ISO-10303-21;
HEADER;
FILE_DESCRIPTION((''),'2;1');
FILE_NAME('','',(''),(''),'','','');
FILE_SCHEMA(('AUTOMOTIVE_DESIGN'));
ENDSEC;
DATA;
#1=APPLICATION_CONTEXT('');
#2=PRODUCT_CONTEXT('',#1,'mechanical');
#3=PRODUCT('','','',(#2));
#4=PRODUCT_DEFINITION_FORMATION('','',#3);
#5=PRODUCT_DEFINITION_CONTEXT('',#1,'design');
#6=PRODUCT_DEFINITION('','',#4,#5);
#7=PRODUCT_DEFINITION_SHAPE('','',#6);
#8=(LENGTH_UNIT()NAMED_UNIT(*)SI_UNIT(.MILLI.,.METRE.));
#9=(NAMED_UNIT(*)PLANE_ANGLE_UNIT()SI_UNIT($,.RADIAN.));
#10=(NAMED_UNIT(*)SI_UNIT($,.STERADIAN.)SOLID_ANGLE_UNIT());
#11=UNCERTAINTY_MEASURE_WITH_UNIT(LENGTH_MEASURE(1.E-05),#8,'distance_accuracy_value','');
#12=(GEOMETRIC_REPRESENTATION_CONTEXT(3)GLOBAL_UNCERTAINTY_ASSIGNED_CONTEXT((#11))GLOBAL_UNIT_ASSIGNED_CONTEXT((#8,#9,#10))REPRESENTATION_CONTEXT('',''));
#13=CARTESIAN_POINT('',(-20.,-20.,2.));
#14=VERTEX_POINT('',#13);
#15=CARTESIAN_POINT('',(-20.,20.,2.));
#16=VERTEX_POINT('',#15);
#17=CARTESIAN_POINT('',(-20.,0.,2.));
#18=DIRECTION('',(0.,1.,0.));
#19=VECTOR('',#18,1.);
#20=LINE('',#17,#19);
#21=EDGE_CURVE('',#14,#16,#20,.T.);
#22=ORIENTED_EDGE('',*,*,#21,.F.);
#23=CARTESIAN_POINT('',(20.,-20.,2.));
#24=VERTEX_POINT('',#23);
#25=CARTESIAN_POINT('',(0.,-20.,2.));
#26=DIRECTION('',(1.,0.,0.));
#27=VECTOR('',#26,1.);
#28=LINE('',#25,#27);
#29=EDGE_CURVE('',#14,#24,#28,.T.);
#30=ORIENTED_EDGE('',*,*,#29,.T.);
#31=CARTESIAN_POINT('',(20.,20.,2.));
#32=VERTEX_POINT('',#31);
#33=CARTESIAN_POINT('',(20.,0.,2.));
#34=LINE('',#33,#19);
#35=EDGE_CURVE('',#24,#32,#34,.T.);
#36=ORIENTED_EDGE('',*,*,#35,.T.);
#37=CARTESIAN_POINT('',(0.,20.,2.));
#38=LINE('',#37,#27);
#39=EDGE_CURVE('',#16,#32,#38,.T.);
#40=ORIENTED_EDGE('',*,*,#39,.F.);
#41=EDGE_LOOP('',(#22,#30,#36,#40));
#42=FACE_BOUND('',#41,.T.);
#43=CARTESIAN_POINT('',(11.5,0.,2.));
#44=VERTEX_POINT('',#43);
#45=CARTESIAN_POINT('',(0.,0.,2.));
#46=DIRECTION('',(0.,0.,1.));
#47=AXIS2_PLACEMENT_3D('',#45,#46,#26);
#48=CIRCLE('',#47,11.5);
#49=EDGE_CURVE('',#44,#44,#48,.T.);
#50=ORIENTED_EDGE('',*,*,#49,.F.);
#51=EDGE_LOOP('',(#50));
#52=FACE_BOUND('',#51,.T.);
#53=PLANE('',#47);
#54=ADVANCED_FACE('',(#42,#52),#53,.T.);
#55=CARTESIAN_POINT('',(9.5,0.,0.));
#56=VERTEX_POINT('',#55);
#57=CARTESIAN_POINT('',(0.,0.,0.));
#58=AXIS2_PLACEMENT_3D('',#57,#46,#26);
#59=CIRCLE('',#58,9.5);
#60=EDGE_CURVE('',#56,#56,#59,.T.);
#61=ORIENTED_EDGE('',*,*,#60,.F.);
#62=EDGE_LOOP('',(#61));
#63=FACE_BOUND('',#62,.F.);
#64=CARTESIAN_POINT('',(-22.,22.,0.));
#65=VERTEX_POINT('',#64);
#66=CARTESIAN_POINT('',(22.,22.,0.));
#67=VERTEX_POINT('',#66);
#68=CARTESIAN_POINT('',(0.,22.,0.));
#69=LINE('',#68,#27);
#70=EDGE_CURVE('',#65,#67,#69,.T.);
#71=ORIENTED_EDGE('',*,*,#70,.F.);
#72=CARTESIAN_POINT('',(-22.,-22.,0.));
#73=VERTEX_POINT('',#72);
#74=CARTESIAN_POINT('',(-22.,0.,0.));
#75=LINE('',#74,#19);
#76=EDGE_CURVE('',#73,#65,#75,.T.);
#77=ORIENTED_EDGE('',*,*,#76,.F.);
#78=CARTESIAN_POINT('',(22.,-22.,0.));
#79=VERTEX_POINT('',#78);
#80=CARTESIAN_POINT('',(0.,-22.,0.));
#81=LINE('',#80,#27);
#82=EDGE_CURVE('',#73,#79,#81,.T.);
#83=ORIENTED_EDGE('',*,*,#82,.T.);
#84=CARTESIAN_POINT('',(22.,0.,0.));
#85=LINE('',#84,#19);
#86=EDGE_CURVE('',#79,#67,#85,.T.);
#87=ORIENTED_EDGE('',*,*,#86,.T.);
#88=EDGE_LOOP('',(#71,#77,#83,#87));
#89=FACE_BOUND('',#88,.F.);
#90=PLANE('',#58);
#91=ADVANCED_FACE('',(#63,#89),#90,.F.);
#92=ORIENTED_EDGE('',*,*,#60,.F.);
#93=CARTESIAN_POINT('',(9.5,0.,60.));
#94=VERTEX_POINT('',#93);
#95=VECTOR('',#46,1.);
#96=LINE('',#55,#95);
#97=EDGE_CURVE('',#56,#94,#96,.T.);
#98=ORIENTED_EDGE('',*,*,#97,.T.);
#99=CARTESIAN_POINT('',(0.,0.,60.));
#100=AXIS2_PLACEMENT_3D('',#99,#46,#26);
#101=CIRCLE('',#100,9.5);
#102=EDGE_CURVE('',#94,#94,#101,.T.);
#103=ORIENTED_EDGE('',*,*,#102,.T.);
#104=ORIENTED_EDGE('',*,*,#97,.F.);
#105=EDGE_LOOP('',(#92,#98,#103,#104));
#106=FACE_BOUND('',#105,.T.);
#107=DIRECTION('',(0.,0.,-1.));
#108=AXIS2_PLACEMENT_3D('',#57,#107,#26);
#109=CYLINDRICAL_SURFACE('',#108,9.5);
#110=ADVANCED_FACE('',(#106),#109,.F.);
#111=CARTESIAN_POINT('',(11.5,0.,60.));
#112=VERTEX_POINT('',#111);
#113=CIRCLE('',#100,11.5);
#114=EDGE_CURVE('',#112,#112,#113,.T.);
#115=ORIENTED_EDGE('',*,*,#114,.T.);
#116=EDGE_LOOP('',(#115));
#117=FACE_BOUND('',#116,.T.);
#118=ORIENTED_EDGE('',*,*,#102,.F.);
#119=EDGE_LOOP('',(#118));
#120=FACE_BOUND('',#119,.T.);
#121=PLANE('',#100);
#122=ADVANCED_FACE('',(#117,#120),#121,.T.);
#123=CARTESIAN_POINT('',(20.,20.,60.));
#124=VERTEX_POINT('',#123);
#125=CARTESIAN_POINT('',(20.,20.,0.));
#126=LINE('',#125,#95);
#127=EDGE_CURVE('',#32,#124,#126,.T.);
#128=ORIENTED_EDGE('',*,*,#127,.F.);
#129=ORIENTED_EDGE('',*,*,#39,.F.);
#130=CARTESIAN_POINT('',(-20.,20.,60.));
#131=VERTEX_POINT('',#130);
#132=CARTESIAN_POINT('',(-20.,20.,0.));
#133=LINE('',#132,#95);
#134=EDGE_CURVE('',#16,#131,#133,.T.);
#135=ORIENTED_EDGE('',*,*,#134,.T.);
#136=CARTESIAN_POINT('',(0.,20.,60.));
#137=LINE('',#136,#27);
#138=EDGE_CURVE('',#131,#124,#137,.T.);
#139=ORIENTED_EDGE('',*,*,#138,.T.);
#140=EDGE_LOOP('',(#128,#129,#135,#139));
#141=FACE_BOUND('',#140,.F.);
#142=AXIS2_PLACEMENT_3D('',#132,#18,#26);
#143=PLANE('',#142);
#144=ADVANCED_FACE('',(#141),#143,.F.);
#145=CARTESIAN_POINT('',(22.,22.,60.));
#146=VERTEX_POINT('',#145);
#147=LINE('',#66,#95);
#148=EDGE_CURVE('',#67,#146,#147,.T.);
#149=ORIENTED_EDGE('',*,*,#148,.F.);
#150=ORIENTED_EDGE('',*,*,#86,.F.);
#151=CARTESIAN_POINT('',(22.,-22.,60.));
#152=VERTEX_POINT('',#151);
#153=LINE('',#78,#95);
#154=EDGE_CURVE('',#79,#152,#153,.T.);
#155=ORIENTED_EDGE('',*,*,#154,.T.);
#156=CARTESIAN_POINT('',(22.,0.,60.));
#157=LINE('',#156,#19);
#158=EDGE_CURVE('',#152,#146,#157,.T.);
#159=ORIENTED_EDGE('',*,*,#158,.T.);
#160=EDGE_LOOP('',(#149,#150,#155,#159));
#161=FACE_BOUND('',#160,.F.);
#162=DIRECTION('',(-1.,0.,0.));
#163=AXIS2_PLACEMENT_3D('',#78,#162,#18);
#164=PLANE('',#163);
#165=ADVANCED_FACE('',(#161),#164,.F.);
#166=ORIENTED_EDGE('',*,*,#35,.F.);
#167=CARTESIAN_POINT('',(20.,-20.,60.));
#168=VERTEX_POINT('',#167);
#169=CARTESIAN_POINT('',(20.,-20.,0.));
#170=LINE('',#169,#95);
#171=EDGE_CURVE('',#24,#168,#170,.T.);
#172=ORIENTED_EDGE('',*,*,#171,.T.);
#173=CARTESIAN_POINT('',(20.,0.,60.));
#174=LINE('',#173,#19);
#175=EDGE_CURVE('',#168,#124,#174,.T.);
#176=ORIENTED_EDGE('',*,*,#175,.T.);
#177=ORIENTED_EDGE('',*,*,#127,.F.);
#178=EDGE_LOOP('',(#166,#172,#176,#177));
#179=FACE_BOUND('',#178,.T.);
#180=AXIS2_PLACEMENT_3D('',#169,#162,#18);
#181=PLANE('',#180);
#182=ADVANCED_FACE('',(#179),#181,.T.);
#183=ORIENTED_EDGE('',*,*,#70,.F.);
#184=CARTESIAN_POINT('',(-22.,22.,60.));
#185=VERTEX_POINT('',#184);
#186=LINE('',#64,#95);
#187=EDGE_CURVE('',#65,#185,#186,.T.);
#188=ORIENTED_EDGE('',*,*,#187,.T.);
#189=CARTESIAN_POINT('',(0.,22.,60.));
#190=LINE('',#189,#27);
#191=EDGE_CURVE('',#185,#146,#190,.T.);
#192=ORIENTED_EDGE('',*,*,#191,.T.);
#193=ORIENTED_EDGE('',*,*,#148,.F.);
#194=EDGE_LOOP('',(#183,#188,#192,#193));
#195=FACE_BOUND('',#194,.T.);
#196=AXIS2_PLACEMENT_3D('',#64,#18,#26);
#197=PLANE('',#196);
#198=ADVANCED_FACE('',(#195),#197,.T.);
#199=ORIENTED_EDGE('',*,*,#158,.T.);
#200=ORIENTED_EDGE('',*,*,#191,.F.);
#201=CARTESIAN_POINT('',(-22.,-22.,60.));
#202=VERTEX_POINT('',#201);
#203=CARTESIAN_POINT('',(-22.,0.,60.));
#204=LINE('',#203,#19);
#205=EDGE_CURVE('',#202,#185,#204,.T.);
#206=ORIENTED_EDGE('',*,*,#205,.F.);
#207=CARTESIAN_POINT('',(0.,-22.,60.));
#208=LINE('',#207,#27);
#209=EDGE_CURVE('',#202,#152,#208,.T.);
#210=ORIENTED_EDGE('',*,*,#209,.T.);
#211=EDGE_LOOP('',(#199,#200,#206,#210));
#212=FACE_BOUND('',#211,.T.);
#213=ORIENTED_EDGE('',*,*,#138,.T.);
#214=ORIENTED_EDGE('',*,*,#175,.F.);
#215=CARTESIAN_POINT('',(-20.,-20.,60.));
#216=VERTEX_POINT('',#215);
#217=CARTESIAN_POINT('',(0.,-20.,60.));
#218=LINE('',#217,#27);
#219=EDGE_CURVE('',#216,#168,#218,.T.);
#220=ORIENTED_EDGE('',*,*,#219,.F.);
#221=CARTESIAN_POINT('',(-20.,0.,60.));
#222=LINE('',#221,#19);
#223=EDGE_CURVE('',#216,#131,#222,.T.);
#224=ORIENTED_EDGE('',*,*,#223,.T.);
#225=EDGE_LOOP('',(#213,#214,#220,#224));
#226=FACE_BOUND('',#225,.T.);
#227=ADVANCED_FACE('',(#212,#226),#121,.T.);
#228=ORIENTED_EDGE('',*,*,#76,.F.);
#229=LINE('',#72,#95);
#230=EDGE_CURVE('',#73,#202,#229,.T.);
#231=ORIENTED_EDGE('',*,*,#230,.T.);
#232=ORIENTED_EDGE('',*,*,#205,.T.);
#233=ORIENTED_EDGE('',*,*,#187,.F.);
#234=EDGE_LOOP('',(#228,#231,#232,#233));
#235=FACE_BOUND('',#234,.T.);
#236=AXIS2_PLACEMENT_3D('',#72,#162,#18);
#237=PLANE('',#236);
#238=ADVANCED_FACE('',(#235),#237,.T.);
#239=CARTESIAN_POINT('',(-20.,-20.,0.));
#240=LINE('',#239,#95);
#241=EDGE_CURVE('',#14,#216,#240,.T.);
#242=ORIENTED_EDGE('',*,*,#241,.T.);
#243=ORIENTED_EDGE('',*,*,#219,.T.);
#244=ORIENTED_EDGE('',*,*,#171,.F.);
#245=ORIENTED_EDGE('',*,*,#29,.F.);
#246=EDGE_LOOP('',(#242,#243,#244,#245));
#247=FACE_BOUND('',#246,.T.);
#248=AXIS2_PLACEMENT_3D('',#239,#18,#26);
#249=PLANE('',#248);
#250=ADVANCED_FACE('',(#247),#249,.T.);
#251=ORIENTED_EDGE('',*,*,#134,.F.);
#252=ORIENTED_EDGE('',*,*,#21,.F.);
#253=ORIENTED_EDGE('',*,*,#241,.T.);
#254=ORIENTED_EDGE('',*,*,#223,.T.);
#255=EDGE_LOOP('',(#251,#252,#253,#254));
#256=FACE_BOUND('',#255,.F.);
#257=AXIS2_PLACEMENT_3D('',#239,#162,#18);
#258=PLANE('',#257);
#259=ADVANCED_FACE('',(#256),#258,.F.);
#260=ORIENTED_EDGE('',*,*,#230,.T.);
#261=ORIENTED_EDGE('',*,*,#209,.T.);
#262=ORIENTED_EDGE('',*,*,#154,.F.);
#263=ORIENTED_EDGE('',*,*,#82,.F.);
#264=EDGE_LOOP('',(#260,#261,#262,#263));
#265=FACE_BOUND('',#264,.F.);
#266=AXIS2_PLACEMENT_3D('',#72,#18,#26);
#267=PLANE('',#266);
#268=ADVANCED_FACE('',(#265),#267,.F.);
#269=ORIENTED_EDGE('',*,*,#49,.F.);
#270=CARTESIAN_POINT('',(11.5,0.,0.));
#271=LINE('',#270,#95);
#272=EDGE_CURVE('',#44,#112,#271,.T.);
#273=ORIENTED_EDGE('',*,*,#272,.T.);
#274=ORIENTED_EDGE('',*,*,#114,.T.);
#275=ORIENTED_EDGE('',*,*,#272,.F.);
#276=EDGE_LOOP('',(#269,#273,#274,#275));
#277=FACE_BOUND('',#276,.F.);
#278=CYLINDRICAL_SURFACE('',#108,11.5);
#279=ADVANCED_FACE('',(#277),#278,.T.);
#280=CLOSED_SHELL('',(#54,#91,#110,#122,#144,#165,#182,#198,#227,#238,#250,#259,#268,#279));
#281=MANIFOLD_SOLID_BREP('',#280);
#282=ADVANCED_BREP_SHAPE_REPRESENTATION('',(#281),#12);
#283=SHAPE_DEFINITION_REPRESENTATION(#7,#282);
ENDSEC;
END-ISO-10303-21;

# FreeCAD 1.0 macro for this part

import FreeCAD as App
import Part
import Sketcher
from FreeCAD import Vector
Q = App.Units.Quantity


def add_polygon(sketch, points):
    """Adds a closed chain of lines whose ends are joined by coincident constraints."""
    first, n = sketch.GeometryCount, len(points)
    for a, b in zip(points, points[1:] + points[:1]):
        sketch.addGeometry(Part.LineSegment(App.Vector(*a, 0), App.Vector(*b, 0)), False)
    for i in range(n):
        sketch.addConstraint(Sketcher.Constraint("Coincident", first + i, 2, first + (i + 1) % n, 1))

doc = App.newDocument("Part")
body = doc.addObject("PartDesign::Body", "Body")

# Sketch on XY plane
sketch1 = doc.addObject("Sketcher::SketchObject", "Sketch")
body.addObject(sketch1)
sketch1.AttachmentSupport = (doc.XY_Plane, [""])
sketch1.MapMode = "FlatFace"
sketch1.addGeometry([
    Part.Circle(Vector(0, 0, 0), Vector(0, 0, 1), 12),
    Part.Circle(Vector(0, 0, 0), Vector(0, 0, 1), 10),
], False)
sketch1.addConstraint([
    Sketcher.Constraint("Coincident", 0, 3, -1, 1),
    Sketcher.Constraint("Coincident", 1, 3, -1, 1),
    Sketcher.Constraint("Diameter", 0, Q("23 mm")),
    Sketcher.Constraint("Diameter", 1, Q("19 mm")),
])
pad1 = doc.addObject("PartDesign::Pad", "Pad")
body.addObject(pad1)
pad1.Profile = sketch1
pad1.Length = 60
body2 = doc.addObject("PartDesign::Body", "Body001")

# Sketch on XY plane
sketch2 = doc.addObject("Sketcher::SketchObject", "Sketch001")
body2.addObject(sketch2)
sketch2.AttachmentSupport = (doc.getObject("XY_Plane001"), [""])
sketch2.MapMode = "FlatFace"
add_polygon(sketch2, [(-22, 22), (-22, -22), (22, -22), (22, 22)])  # lines 0-3
add_polygon(sketch2, [(20, -20), (-20, -20), (-20, 20), (20, 20)])  # lines 4-7
sketch2.addConstraint([
    Sketcher.Constraint("Vertical", 0),
    Sketcher.Constraint("Horizontal", 1),
    Sketcher.Constraint("Vertical", 2),
    Sketcher.Constraint("Horizontal", 3),
    Sketcher.Constraint("Horizontal", 4),
    Sketcher.Constraint("Vertical", 5),
    Sketcher.Constraint("Horizontal", 6),
    Sketcher.Constraint("Vertical", 7),
    Sketcher.Constraint("Symmetric", 0, 2, 2, 2, -1, 1),
    Sketcher.Constraint("Symmetric", 4, 2, 6, 2, -1, 1),
    Sketcher.Constraint("Equal", 3, 0),
    Sketcher.Constraint("Equal", 6, 5),
    Sketcher.Constraint("DistanceX", 1, 1, 1, 2, Q("44 mm")),
    Sketcher.Constraint("DistanceX", 4, 2, 4, 1, Q("40 mm")),
])
pad2 = doc.addObject("PartDesign::Pad", "Pad001")
body2.addObject(pad2)
pad2.Profile = sketch2
pad2.Length = 60
body.AllowCompound = True
doc.recompute()

boolean = doc.addObject("PartDesign::Boolean", "Boolean")
body.addObject(boolean)
boolean.Type = "Fuse"
boolean.addObjects([body2])

# Sketch on XY plane
sketch3 = doc.addObject("Sketcher::SketchObject", "Sketch002")
body.addObject(sketch3)
sketch3.AttachmentSupport = (doc.XY_Plane, [""])
sketch3.MapMode = "FlatFace"
add_polygon(sketch3, [(-20, 20), (-20, -20), (20, -20), (20, 20)])  # lines 0-3
sketch3.addGeometry(Part.Circle(Vector(0, 0, 0), Vector(0, 0, 1), 12), False)  # 4
sketch3.addConstraint([
    Sketcher.Constraint("Vertical", 0),
    Sketcher.Constraint("Horizontal", 1),
    Sketcher.Constraint("Vertical", 2),
    Sketcher.Constraint("Horizontal", 3),
    Sketcher.Constraint("Coincident", 4, 3, -1, 1),
    Sketcher.Constraint("Symmetric", 0, 2, 2, 2, -1, 1),
    Sketcher.Constraint("Equal", 3, 0),
    Sketcher.Constraint("Diameter", 4, Q("23 mm")),
    Sketcher.Constraint("DistanceX", 1, 1, 1, 2, Q("40 mm")),
])
pad3 = doc.addObject("PartDesign::Pad", "Pad002")
body.addObject(pad3)
pad3.Profile = sketch3
pad3.Length = 2

doc.recompute()
